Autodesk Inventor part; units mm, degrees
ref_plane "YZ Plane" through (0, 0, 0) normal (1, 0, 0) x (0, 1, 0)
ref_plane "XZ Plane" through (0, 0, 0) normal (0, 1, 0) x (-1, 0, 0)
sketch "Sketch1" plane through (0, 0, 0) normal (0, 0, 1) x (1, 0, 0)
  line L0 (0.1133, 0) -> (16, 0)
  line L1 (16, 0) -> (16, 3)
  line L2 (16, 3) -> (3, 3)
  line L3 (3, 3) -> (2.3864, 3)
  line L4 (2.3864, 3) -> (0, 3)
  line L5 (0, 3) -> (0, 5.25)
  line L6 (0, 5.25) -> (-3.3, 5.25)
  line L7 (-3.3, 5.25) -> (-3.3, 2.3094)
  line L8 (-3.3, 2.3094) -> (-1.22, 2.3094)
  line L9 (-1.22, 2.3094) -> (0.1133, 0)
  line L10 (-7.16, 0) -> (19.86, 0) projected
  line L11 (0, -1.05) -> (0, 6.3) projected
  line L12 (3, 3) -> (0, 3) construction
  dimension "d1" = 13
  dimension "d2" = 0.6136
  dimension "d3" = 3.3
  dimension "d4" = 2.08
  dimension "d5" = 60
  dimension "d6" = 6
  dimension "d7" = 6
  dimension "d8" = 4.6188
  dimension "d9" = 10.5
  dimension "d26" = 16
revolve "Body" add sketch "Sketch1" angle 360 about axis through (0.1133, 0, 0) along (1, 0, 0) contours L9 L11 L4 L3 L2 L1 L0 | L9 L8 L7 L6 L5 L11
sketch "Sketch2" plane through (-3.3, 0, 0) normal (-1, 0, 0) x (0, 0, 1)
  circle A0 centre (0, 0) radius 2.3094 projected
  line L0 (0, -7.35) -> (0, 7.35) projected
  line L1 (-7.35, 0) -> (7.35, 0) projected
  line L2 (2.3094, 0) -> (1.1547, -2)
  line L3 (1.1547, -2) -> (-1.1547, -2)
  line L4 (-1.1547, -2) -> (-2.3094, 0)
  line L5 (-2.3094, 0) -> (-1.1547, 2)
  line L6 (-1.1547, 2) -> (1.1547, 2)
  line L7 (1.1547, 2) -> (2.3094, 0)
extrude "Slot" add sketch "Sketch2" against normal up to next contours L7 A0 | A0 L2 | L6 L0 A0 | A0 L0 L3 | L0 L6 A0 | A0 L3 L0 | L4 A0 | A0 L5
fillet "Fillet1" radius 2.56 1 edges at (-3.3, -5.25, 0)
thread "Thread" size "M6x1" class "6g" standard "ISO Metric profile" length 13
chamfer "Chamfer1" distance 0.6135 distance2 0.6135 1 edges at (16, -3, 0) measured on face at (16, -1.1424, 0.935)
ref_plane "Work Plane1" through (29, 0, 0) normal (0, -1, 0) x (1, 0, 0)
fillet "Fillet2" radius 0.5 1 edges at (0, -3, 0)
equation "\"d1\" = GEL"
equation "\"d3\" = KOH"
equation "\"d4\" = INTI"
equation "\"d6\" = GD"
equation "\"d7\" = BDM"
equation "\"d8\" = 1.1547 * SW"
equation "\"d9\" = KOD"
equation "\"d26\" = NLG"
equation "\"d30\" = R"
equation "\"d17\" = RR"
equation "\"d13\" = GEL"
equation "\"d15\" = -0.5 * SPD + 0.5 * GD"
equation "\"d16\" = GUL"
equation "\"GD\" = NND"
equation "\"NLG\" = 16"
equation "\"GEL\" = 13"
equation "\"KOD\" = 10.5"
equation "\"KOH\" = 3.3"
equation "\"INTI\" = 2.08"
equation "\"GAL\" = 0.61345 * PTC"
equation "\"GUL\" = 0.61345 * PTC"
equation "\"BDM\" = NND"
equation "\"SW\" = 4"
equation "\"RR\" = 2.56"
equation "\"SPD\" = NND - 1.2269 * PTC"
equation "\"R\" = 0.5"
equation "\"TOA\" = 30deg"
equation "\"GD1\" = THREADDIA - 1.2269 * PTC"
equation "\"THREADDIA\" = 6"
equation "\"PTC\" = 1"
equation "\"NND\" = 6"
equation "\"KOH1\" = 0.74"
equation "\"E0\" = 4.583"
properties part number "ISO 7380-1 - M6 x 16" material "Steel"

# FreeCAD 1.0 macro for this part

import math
import FreeCAD as App
import Part
import Sketcher

V = App.Vector
Q = App.Units.Quantity


def edges_at(feature, points):
    """Names of the edges that pass closest to the given points."""
    edges = feature.Shape.Edges
    near = lambda p: min(range(len(edges)), key=lambda i: edges[i].distToShape(Part.Vertex(*p))[0])
    return sorted({f"Edge{near(p) + 1}" for p in points})


def add_polygon(sketch, points):
    """Adds a closed chain of lines whose ends are joined by coincident constraints."""
    first, n = sketch.GeometryCount, len(points)
    for a, b in zip(points, points[1:] + points[:1]):
        sketch.addGeometry(Part.LineSegment(App.Vector(*a, 0), App.Vector(*b, 0)), False)
    for i in range(n):
        sketch.addConstraint(Sketcher.Constraint("Coincident", first + i, 2, first + (i + 1) % n, 1))

doc = App.newDocument("Part")
body = doc.addObject("PartDesign::Body", "Body")

sketch1 = body.newObject("Sketcher::SketchObject", "Sketch")
sketch1.AttachmentSupport = (doc.getObject("XY_Plane"), [""])
sketch1.MapMode = "FlatFace"
add_polygon(sketch1, [(0.1133, 0), (16, 0), (16, 3), (0, 3), (0, 5.25), (-3.3, 5.25), (-3.3, 2.3094), (-1.22, 2.3094)])
sketch1.addConstraint([
    Sketcher.Constraint("Horizontal", 0),
    Sketcher.Constraint("Vertical", 1),
    Sketcher.Constraint("Horizontal", 2),
    Sketcher.Constraint("Vertical", 3),
    Sketcher.Constraint("Horizontal", 4),
    Sketcher.Constraint("Vertical", 5),
    Sketcher.Constraint("Horizontal", 6),
    Sketcher.Constraint("PointOnObject", 0, 2, -1),
    Sketcher.Constraint("PointOnObject", 2, 2, -2),
    Sketcher.Constraint("DistanceX", 2, 2, 2, 1, Q("16 mm")),
    Sketcher.Constraint("DistanceX", 4, 2, 4, 1, Q("3.3 mm")),
    Sketcher.Constraint("DistanceX", 6, 1, 6, 2, Q("2.08 mm")),
    Sketcher.Constraint("DistanceY", 1, 1, 1, 2, Q("3 mm")),
    Sketcher.Constraint("Angle", 7, Q("-60.0006 deg")),
    Sketcher.Constraint("DistanceY", 3, 1, 3, 2, Q("2.25 mm")),
    Sketcher.Constraint("DistanceX", 0, 1, 0, 2, Q("15.8867 mm")),
])
revolution = body.newObject("PartDesign::Revolution", "Revolution")
revolution.Profile = sketch1
revolution.ReferenceAxis = (sketch1, ["H_Axis"])
revolution.Angle = 360

sketch2 = body.newObject("Sketcher::SketchObject", "Sketch001")
sketch2.AttachmentSupport = (doc.getObject("YZ_Plane"), [""])
sketch2.MapMode = "FlatFace"
sketch2.AttachmentOffset = App.Placement(V(0, 0, -3.3), App.Rotation())
sketch2.addGeometry([
    Part.LineSegment(V(2, 1.1547, 0), V(0, 2.3094, 0)),
    Part.ArcOfCircle(Part.Circle(V(0, 0, 0), V(0, 0, 1), 2.3094), math.radians(29.999988), math.radians(90)),
    Part.ArcOfCircle(Part.Circle(V(0, 0, 0), V(0, 0, 1), 2.3094), math.radians(90), math.radians(150.000012)),
    Part.LineSegment(V(0, 2.3094, 0), V(-2, 1.1547, 0)),
    Part.ArcOfCircle(Part.Circle(V(0, 0, 0), V(0, 0, 1), 2.3094), math.radians(-29.999988), math.radians(29.999988)),
    Part.LineSegment(V(2, -1.1547, 0), V(2, 1.1547, 0)),
    Part.LineSegment(V(-2, 1.1547, 0), V(-2, -1.1547, 0)),
    Part.ArcOfCircle(Part.Circle(V(0, 0, 0), V(0, 0, 1), 2.3094), math.radians(150.000012), math.radians(209.999988)),
    Part.LineSegment(V(-2, -1.1547, 0), V(0, -2.3094, 0)),
    Part.ArcOfCircle(Part.Circle(V(0, 0, 0), V(0, 0, 1), 2.3094), math.radians(-150.000012), math.radians(-90)),
    Part.ArcOfCircle(Part.Circle(V(0, 0, 0), V(0, 0, 1), 2.3094), math.radians(-90), math.radians(-29.999988)),
    Part.LineSegment(V(0, -2.3094, 0), V(2, -1.1547, 0)),
], False)
sketch2.addConstraint([
    Sketcher.Constraint("Coincident", 0, 1, 1, 1),
    Sketcher.Constraint("Coincident", 1, 2, 0, 2),
    Sketcher.Constraint("Coincident", 2, 1, 3, 1),
    Sketcher.Constraint("Coincident", 3, 2, 2, 2),
    Sketcher.Constraint("Coincident", 4, 1, 5, 1),
    Sketcher.Constraint("Coincident", 5, 2, 4, 2),
    Sketcher.Constraint("Coincident", 6, 1, 7, 1),
    Sketcher.Constraint("Coincident", 7, 2, 6, 2),
    Sketcher.Constraint("Coincident", 8, 1, 9, 1),
    Sketcher.Constraint("Coincident", 9, 2, 8, 2),
    Sketcher.Constraint("Coincident", 10, 1, 11, 1),
    Sketcher.Constraint("Coincident", 11, 2, 10, 2),
    Sketcher.Constraint("Vertical", 5),
    Sketcher.Constraint("Vertical", 6),
    Sketcher.Constraint("Coincident", 1, 3, -1, 1),
    Sketcher.Constraint("Coincident", 2, 3, -1, 1),
    Sketcher.Constraint("Coincident", 4, 3, -1, 1),
    Sketcher.Constraint("Coincident", 7, 3, -1, 1),
    Sketcher.Constraint("Coincident", 9, 3, -1, 1),
    Sketcher.Constraint("Coincident", 10, 3, -1, 1),
    Sketcher.Constraint("Coincident", 2, 1, 1, 2),
    Sketcher.Constraint("Coincident", 5, 2, 0, 1),
    Sketcher.Constraint("Coincident", 6, 1, 3, 2),
    Sketcher.Constraint("Coincident", 8, 1, 7, 2),
    Sketcher.Constraint("Coincident", 10, 1, 9, 2),
    Sketcher.Constraint("PointOnObject", 1, 2, -2),
    Sketcher.Constraint("PointOnObject", 9, 2, -2),
    Sketcher.Constraint("Parallel", 0, 8),
    Sketcher.Constraint("Parallel", 3, 11),
    Sketcher.Constraint("Angle", 0, Q("150 deg")),
    Sketcher.Constraint("DistanceX", -1, 1, 0, 1, Q("2 mm")),
])
pad1 = body.newObject("PartDesign::Pad", "Pad")
pad1.Profile = sketch2
pad1.Length = 2.2586
doc.recompute()

fillet = body.newObject("PartDesign::Fillet", "Fillet")
fillet.Base = (pad1, edges_at(pad1, [(-3.3, -5.25, 0)]))
fillet.Radius = 2.56
doc.recompute()

chamfer = body.newObject("PartDesign::Chamfer", "Chamfer")
chamfer.Base = (fillet, edges_at(fillet, [(16, -3, 0)]))
chamfer.ChamferType = "Two distances"
chamfer.Size = 0.6135
chamfer.Size2 = 0.6135
doc.recompute()

fillet2 = body.newObject("PartDesign::Fillet", "Fillet001")
fillet2.Base = (chamfer, edges_at(chamfer, [(0, -3, 0)]))
fillet2.Radius = 0.5

doc.recompute()
